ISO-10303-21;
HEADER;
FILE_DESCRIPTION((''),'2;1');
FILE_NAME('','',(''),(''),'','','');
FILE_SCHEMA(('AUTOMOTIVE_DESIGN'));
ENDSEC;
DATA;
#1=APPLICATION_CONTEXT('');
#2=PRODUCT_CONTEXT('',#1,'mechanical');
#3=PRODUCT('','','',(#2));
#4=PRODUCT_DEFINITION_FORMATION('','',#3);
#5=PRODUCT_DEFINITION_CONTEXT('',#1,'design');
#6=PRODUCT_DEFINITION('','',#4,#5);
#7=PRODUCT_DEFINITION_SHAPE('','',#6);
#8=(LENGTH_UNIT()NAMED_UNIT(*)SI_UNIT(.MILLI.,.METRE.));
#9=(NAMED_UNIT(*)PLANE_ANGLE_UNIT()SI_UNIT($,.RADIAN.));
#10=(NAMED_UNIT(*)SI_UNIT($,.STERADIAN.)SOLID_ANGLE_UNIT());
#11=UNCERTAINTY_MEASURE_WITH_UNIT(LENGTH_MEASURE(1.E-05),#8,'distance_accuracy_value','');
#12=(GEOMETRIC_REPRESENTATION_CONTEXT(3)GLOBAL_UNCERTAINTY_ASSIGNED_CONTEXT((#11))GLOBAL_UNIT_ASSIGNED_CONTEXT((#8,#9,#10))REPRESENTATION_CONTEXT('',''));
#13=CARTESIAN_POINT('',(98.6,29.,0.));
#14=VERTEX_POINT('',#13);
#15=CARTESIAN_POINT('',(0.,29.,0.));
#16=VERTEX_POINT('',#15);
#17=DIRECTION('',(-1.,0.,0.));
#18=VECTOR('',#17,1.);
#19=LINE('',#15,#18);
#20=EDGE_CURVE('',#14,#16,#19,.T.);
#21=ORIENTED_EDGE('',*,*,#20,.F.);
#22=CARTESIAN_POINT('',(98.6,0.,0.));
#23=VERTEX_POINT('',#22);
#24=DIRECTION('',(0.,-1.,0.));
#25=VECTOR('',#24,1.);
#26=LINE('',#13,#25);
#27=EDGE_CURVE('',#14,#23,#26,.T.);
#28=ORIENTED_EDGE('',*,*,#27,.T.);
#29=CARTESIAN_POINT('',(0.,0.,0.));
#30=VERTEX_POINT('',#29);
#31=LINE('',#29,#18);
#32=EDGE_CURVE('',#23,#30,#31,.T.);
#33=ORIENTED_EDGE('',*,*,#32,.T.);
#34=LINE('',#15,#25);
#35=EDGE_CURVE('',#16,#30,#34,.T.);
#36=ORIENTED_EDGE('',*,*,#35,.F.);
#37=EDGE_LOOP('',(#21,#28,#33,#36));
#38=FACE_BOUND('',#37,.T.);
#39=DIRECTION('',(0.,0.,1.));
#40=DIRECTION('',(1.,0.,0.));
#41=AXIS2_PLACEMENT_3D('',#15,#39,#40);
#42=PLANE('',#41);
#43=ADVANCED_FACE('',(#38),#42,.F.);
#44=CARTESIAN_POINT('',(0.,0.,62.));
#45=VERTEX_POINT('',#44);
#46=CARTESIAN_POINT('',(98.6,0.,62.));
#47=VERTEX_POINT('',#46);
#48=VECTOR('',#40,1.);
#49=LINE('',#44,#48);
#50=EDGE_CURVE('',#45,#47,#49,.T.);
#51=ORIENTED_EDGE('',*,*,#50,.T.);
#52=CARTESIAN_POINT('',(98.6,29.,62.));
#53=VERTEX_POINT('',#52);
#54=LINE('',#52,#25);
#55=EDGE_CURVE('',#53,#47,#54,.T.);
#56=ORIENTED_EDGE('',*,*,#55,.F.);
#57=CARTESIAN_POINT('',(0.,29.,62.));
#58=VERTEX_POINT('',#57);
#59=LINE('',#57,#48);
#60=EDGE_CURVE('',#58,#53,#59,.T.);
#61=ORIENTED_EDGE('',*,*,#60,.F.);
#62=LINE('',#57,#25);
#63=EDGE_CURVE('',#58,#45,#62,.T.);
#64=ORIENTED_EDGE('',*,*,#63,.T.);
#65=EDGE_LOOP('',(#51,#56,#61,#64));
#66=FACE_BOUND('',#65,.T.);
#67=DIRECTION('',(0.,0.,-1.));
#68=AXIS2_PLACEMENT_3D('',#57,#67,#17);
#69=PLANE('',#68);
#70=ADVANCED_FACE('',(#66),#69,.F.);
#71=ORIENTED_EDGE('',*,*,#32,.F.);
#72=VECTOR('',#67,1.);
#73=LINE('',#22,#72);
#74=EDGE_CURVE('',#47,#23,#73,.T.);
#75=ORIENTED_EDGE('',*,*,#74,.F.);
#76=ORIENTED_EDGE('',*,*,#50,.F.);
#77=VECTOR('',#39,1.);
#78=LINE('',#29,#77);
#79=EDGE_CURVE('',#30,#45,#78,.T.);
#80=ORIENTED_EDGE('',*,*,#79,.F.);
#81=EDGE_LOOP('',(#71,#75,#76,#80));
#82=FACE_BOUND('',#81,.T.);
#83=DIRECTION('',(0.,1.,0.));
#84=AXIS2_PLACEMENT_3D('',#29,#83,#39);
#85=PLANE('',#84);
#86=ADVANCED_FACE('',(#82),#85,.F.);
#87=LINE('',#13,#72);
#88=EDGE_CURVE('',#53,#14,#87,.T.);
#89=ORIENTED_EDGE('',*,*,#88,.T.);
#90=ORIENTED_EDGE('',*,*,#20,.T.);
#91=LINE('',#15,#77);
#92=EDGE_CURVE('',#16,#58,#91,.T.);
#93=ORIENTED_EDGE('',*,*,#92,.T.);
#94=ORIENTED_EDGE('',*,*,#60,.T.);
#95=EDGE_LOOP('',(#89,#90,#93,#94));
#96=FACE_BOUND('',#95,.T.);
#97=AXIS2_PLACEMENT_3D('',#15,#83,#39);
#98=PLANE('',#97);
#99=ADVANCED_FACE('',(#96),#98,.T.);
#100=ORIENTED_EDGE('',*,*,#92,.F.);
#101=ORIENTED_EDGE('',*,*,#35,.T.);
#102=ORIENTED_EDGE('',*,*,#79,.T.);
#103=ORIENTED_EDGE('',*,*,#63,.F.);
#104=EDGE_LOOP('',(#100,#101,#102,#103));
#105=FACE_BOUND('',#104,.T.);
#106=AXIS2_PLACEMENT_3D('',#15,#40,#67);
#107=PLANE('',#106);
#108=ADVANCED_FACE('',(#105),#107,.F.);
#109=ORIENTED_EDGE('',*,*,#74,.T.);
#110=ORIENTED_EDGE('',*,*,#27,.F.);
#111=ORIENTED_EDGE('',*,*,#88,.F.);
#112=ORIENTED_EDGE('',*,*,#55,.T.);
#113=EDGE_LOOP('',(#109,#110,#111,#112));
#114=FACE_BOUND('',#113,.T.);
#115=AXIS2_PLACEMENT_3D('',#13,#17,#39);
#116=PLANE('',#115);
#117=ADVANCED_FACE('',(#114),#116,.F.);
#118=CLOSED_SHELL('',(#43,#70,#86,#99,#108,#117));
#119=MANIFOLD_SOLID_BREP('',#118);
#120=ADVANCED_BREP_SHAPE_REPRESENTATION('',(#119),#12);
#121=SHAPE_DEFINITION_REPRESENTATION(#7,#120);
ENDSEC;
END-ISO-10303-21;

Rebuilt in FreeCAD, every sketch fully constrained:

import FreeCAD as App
import Part
import Sketcher
Q = App.Units.Quantity


def add_polygon(sketch, points):
    """Adds a closed chain of lines whose ends are joined by coincident constraints."""
    first, n = sketch.GeometryCount, len(points)
    for a, b in zip(points, points[1:] + points[:1]):
        sketch.addGeometry(Part.LineSegment(App.Vector(*a, 0), App.Vector(*b, 0)), False)
    for i in range(n):
        sketch.addConstraint(Sketcher.Constraint("Coincident", first + i, 2, first + (i + 1) % n, 1))

doc = App.newDocument("Part")
params = doc.addObject("Spreadsheet::Sheet", "Params")
for row, (alias, value) in enumerate([
    ("sketch1_height", "62 mm"),
    ("sketch1_width", "98.6 mm"),
    ("pad1_length", "29 mm"),
], start=1):
    params.set(f"A{row}", alias)
    params.set(f"B{row}", "=" + value)
    params.setAlias(f"B{row}", alias)

body = doc.addObject("PartDesign::Body", "Body")

# Sketch on XZ plane
sketch1 = body.newObject("Sketcher::SketchObject", "Sketch")
sketch1.AttachmentSupport = (doc.getObject("XZ_Plane"), [""])
sketch1.MapMode = "FlatFace"
add_polygon(sketch1, [(0, 0), (0, 62), (99, 62), (99, 0)])  # lines 0-3
sketch1.addConstraint([
    Sketcher.Constraint("Vertical", 0),
    Sketcher.Constraint("Horizontal", 1),
    Sketcher.Constraint("Vertical", 2),
    Sketcher.Constraint("Horizontal", 3),
    Sketcher.Constraint("Coincident", 3, 2, -1, 1),
    Sketcher.Constraint("DistanceY", 0, 1, 0, 2, Q("62 mm")),
    Sketcher.Constraint("DistanceX", 1, 1, 1, 2, Q("98.6 mm")),
])
sketch1.setExpression("Constraints[9]", "Params.sketch1_height")
sketch1.setExpression("Constraints[10]", "Params.sketch1_width")
pad1 = body.newObject("PartDesign::Pad", "Pad")
pad1.Profile = sketch1
pad1.setExpression("Length", "Params.pad1_length")
pad1.Reversed = True

doc.recompute()
